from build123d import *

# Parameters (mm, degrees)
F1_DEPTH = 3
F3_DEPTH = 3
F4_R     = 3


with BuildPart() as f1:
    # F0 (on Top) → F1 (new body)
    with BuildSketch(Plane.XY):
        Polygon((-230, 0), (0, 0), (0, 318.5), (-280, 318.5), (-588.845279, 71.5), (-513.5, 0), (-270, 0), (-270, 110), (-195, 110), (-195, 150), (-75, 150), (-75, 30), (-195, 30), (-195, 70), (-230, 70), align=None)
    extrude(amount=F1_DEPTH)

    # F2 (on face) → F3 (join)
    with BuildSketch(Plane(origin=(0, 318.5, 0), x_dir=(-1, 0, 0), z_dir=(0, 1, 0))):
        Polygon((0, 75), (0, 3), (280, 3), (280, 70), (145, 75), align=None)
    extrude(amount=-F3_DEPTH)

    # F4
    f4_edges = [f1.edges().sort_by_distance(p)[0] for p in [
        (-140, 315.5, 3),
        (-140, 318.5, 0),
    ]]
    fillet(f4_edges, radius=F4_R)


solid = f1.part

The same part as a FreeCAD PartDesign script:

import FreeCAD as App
import Part
import Sketcher

V = App.Vector
Q = App.Units.Quantity


def edges_at(feature, points):
    """Names of the edges that pass closest to the given points."""
    edges = feature.Shape.Edges
    near = lambda p: min(range(len(edges)), key=lambda i: edges[i].distToShape(Part.Vertex(*p))[0])
    return sorted({f"Edge{near(p) + 1}" for p in points})


def add_polygon(sketch, points):
    """Adds a closed chain of lines whose ends are joined by coincident constraints."""
    first, n = sketch.GeometryCount, len(points)
    for a, b in zip(points, points[1:] + points[:1]):
        sketch.addGeometry(Part.LineSegment(App.Vector(*a, 0), App.Vector(*b, 0)), False)
    for i in range(n):
        sketch.addConstraint(Sketcher.Constraint("Coincident", first + i, 2, first + (i + 1) % n, 1))

doc = App.newDocument("Part")
body = doc.addObject("PartDesign::Body", "Body")

sketch1 = body.newObject("Sketcher::SketchObject", "Sketch")
sketch1.AttachmentSupport = (doc.getObject("XY_Plane"), [""])
sketch1.MapMode = "FlatFace"
add_polygon(sketch1, [(-230, 0), (0, 0), (0, 318), (-280, 318), (-589, 72), (-514, 0), (-270, 0), (-270, 110), (-195, 110), (-195, 150), (-75, 150), (-75, 30), (-195, 30), (-195, 70), (-230, 70)])
sketch1.addConstraint([
    Sketcher.Constraint("Horizontal", 0),
    Sketcher.Constraint("Vertical", 1),
    Sketcher.Constraint("Horizontal", 2),
    Sketcher.Constraint("Horizontal", 5),
    Sketcher.Constraint("Vertical", 6),
    Sketcher.Constraint("Horizontal", 7),
    Sketcher.Constraint("Vertical", 8),
    Sketcher.Constraint("Horizontal", 9),
    Sketcher.Constraint("Vertical", 10),
    Sketcher.Constraint("Horizontal", 11),
    Sketcher.Constraint("Vertical", 12),
    Sketcher.Constraint("Horizontal", 13),
    Sketcher.Constraint("Vertical", 14),
    Sketcher.Constraint("Coincident", 0, 2, -1, 1),
    Sketcher.Constraint("PointOnObject", 4, 2, -1),
    Sketcher.Constraint("Vertical", 8, 2, 11, 2),
    Sketcher.Constraint("Equal", 11, 10),
    Sketcher.Constraint("Equal", 8, 12),
    Sketcher.Constraint("DistanceX", 0, 1, 0, 2, Q("230 mm")),
    Sketcher.Constraint("DistanceX", 2, 2, 2, 1, Q("280 mm")),
    Sketcher.Constraint("DistanceX", 7, 1, 7, 2, Q("75 mm")),
    Sketcher.Constraint("DistanceX", 9, 1, 9, 2, Q("120 mm")),
    Sketcher.Constraint("DistanceX", 13, 2, 13, 1, Q("35 mm")),
    Sketcher.Constraint("DistanceY", 6, 1, 6, 2, Q("110 mm")),
    Sketcher.Constraint("DistanceY", 8, 1, 8, 2, Q("40 mm")),
    Sketcher.Constraint("DistanceX", 5, 1, 5, 2, Q("243.5 mm")),
    Sketcher.Constraint("DistanceY", 1, 1, 1, 2, Q("318.5 mm")),
    Sketcher.Constraint("Angle", 4, Q("-43.5 deg")),
    Sketcher.Constraint("DistanceY", 3, 2, 2, 2, Q("247 mm")),
])
pad1 = body.newObject("PartDesign::Pad", "Pad")
pad1.Profile = sketch1
pad1.Length = 3

sketch2 = body.newObject("Sketcher::SketchObject", "Sketch001")
sketch2.AttachmentSupport = (doc.getObject("XZ_Plane"), [""])
sketch2.MapMode = "FlatFace"
sketch2.AttachmentOffset = App.Placement(V(0, 0, -318.5), App.Rotation())
add_polygon(sketch2, [(0, 75), (0, 3), (-280, 3), (-280, 70), (-145, 75)])
sketch2.addConstraint([
    Sketcher.Constraint("Vertical", 0),
    Sketcher.Constraint("Horizontal", 1),
    Sketcher.Constraint("Vertical", 2),
    Sketcher.Constraint("Horizontal", 4),
    Sketcher.Constraint("PointOnObject", 0, 2, -2),
    Sketcher.Constraint("DistanceX", 1, 2, 1, 1, Q("280 mm")),
    Sketcher.Constraint("DistanceX", 4, 1, 4, 2, Q("145 mm")),
    Sketcher.Constraint("DistanceY", 0, 2, 0, 1, Q("72 mm")),
    Sketcher.Constraint("DistanceY", 2, 1, 2, 2, Q("67 mm")),
    Sketcher.Constraint("DistanceY", -1, 1, 0, 2, Q("3 mm")),
])
pad2 = body.newObject("PartDesign::Pad", "Pad001")
pad2.Profile = sketch2
pad2.Length = 3
doc.recompute()

fillet = body.newObject("PartDesign::Fillet", "Fillet")
fillet.Base = (pad2, edges_at(pad2, [(-140, 315.5, 3), (-140, 318.5, 0)]))
fillet.Radius = 3

doc.recompute()
